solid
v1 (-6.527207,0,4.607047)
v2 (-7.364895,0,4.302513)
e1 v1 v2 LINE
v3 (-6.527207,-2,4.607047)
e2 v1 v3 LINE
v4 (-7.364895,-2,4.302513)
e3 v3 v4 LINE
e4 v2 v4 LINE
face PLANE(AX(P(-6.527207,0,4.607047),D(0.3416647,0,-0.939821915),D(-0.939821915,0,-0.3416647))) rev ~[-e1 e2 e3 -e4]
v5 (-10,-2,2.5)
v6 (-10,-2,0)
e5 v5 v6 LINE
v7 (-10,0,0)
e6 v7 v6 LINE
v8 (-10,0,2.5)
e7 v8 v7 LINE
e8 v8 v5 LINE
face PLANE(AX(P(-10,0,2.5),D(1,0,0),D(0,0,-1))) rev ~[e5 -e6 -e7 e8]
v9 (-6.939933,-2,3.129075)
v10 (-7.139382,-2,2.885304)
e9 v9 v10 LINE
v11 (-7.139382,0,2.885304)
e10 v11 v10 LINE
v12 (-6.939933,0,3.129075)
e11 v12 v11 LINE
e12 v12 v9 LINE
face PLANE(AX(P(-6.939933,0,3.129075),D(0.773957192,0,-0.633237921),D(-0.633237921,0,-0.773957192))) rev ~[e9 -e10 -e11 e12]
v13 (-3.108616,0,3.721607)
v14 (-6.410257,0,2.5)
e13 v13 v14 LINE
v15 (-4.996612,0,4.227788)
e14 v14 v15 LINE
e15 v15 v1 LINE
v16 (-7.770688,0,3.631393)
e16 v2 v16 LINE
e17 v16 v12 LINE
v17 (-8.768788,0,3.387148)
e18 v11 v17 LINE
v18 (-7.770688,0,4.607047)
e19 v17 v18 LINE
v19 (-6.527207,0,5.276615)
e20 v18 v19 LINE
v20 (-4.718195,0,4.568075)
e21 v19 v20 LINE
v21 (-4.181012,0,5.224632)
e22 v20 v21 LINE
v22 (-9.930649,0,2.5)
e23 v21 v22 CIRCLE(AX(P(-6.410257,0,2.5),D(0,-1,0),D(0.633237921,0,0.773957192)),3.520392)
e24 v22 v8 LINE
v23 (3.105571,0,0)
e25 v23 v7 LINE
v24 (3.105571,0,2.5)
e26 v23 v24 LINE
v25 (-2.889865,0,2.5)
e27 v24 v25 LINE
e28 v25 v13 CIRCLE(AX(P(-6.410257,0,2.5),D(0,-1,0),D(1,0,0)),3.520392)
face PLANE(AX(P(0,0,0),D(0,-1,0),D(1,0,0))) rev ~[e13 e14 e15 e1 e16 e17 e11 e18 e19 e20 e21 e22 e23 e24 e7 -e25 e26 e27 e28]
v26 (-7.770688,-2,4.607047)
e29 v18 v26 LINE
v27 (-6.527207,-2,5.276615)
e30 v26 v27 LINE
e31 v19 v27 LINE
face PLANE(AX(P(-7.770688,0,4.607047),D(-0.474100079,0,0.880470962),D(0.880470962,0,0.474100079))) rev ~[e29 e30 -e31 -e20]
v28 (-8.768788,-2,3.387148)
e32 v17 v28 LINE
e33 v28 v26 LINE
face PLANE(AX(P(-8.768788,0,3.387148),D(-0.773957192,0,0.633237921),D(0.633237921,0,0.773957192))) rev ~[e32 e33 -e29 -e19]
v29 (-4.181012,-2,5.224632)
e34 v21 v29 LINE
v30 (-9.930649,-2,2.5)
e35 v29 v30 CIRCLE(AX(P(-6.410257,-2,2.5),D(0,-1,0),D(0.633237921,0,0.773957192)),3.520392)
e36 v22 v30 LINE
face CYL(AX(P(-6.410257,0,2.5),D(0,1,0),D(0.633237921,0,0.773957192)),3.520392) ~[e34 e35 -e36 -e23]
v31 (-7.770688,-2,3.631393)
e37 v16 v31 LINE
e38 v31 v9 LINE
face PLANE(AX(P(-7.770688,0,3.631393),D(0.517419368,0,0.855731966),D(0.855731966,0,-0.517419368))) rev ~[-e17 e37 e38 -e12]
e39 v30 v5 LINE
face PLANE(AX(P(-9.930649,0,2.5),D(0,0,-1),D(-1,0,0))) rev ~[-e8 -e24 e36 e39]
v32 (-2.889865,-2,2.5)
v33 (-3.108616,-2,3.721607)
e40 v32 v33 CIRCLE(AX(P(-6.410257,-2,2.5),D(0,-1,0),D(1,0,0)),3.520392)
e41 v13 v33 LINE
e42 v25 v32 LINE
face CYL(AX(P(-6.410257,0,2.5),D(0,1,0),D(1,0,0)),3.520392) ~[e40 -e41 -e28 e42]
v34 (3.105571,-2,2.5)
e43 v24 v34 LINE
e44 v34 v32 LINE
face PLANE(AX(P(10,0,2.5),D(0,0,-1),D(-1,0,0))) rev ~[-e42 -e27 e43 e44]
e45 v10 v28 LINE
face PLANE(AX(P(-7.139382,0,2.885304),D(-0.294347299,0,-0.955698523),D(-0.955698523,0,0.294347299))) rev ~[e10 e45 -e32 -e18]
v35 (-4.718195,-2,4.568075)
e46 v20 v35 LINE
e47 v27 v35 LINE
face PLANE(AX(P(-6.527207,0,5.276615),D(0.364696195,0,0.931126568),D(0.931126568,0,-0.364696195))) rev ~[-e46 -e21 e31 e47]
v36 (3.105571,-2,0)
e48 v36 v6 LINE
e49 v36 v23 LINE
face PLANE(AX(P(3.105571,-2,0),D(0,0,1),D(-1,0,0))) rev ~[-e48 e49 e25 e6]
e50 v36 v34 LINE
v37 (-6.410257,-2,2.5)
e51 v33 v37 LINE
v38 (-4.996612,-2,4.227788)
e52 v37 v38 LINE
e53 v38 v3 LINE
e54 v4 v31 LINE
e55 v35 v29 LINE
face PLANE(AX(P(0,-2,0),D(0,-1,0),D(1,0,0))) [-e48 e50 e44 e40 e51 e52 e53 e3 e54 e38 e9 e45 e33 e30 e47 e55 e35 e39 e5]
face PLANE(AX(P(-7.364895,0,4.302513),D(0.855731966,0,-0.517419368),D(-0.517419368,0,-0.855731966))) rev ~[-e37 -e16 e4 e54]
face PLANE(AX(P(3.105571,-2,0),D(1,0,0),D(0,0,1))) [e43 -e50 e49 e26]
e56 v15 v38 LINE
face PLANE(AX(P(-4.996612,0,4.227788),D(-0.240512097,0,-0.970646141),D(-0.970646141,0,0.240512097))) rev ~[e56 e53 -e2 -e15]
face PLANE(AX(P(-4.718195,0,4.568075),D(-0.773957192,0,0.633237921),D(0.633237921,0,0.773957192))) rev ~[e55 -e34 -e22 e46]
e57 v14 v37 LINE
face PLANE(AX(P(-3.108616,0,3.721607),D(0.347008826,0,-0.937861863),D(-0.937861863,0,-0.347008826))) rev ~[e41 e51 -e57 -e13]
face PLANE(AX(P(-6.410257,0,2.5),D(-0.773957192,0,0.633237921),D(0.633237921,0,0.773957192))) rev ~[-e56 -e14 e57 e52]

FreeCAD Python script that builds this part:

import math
import FreeCAD as App
import Part
import Sketcher
Q = App.Units.Quantity


def add_polygon(sketch, points):
    """Adds a closed chain of lines whose ends are joined by coincident constraints."""
    first, n = sketch.GeometryCount, len(points)
    for a, b in zip(points, points[1:] + points[:1]):
        sketch.addGeometry(Part.LineSegment(App.Vector(*a, 0), App.Vector(*b, 0)), False)
    for i in range(n):
        sketch.addConstraint(Sketcher.Constraint("Coincident", first + i, 2, first + (i + 1) % n, 1))

doc = App.newDocument("Part")
body = doc.addObject("PartDesign::Body", "Body")

sketch1 = body.newObject("Sketcher::SketchObject", "Sketch")
sketch1.AttachmentSupport = (doc.getObject("XZ_Plane"), [""])
sketch1.MapMode = "FlatFace"
sketch1.addGeometry([
    Part.LineSegment(App.Vector(-10, 2.5, 0), App.Vector(-10, -2.5, 0)),
    Part.LineSegment(App.Vector(-10, -2.5, 0), App.Vector(10, -2.5, 0)),
    Part.LineSegment(App.Vector(10, -2.5, 0), App.Vector(10, 2.5, 0)),
    Part.LineSegment(App.Vector(10, 2.5, 0), App.Vector(-2.89, 2.5, 0)),
    Part.ArcOfCircle(Part.Circle(App.Vector(-6.41, 2.5, 0), App.Vector(0, 0, 1), 3.52), math.radians(0), math.radians(20)),
    Part.LineSegment(App.Vector(-3.11, 3.72, 0), App.Vector(-6.41, 2.5, 0)),
    Part.LineSegment(App.Vector(-6.41, 2.5, 0), App.Vector(-5, 4.23, 0)),
    Part.LineSegment(App.Vector(-5, 4.23, 0), App.Vector(-6.53, 4.61, 0)),
    Part.LineSegment(App.Vector(-6.53, 4.61, 0), App.Vector(-7.36, 4.3, 0)),
    Part.LineSegment(App.Vector(-7.36, 4.3, 0), App.Vector(-7.77, 3.63, 0)),
    Part.LineSegment(App.Vector(-7.77, 3.63, 0), App.Vector(-6.94, 3.13, 0)),
    Part.LineSegment(App.Vector(-6.94, 3.13, 0), App.Vector(-7.14, 2.89, 0)),
    Part.LineSegment(App.Vector(-7.14, 2.89, 0), App.Vector(-8.77, 3.39, 0)),
    Part.LineSegment(App.Vector(-8.77, 3.39, 0), App.Vector(-7.77, 4.61, 0)),
    Part.LineSegment(App.Vector(-7.77, 4.61, 0), App.Vector(-6.53, 5.28, 0)),
    Part.LineSegment(App.Vector(-6.53, 5.28, 0), App.Vector(-4.72, 4.57, 0)),
    Part.LineSegment(App.Vector(-4.72, 4.57, 0), App.Vector(-4.18, 5.22, 0)),
    Part.ArcOfCircle(Part.Circle(App.Vector(-6.41, 2.5, 0), App.Vector(0, 0, 1), 3.52), math.radians(51), math.radians(180)),
    Part.LineSegment(App.Vector(-9.93, 2.5, 0), App.Vector(-10, 2.5, 0)),
], False)
sketch1.addConstraint([
    Sketcher.Constraint("Coincident", 0, 2, 1, 1),
    Sketcher.Constraint("Coincident", 1, 2, 2, 1),
    Sketcher.Constraint("Coincident", 2, 2, 3, 1),
    Sketcher.Constraint("Coincident", 3, 2, 4, 1),
    Sketcher.Constraint("Coincident", 4, 2, 5, 1),
    Sketcher.Constraint("Coincident", 5, 2, 6, 1),
    Sketcher.Constraint("Coincident", 6, 2, 7, 1),
    Sketcher.Constraint("Coincident", 7, 2, 8, 1),
    Sketcher.Constraint("Coincident", 8, 2, 9, 1),
    Sketcher.Constraint("Coincident", 9, 2, 10, 1),
    Sketcher.Constraint("Coincident", 10, 2, 11, 1),
    Sketcher.Constraint("Coincident", 11, 2, 12, 1),
    Sketcher.Constraint("Coincident", 12, 2, 13, 1),
    Sketcher.Constraint("Coincident", 13, 2, 14, 1),
    Sketcher.Constraint("Coincident", 14, 2, 15, 1),
    Sketcher.Constraint("Coincident", 15, 2, 16, 1),
    Sketcher.Constraint("Coincident", 16, 2, 17, 1),
    Sketcher.Constraint("Coincident", 17, 2, 18, 1),
    Sketcher.Constraint("Coincident", 18, 2, 0, 1),
    Sketcher.Constraint("Vertical", 0),
    Sketcher.Constraint("Horizontal", 1),
    Sketcher.Constraint("Vertical", 2),
    Sketcher.Constraint("Horizontal", 3),
    Sketcher.Constraint("Horizontal", 18),
    Sketcher.Constraint("Coincident", 17, 3, 4, 3),
    Sketcher.Constraint("Coincident", 5, 2, 4, 3),
    Sketcher.Constraint("Equal", 4, 17),
    Sketcher.Constraint("Symmetric", 0, 2, 2, 2, -1, 1),
    Sketcher.Constraint("Perpendicular", 9, 10),
    Sketcher.Constraint("Parallel", 6, 11),
    Sketcher.Constraint("Parallel", 11, 13),
    Sketcher.Constraint("Parallel", 13, 16),
    Sketcher.Constraint("Horizontal", 17, 3, 2, 2),
    Sketcher.Constraint("Horizontal", 7, 2, 13, 2),
    Sketcher.Constraint("Horizontal", 5, 2, 17, 2),
    Sketcher.Constraint("Vertical", 9, 2, 13, 2),
    Sketcher.Constraint("Vertical", 7, 2, 14, 2),
    Sketcher.Constraint("DistanceX", 1, 1, 1, 2, Q("20 mm")),
    Sketcher.Constraint("DistanceY", 0, 2, 0, 1, Q("5 mm")),
    Sketcher.Constraint("Radius", 4, Q("3.520392 mm")),
    Sketcher.Constraint("DistanceY", 10, 2, 15, 2, Q("1.439 mm")),
    Sketcher.Constraint("DistanceX", 18, 2, 18, 1, Q("0.069351 mm")),
    Sketcher.Constraint("DistanceX", 12, 2, 9, 2, Q("0.9981 mm")),
    Sketcher.Constraint("DistanceY", 12, 2, 13, 2, Q("1.2199 mm")),
    Sketcher.Constraint("DistanceX", 6, 2, 16, 2, Q("0.8156 mm")),
    Sketcher.Constraint("Distance", 14, Q("1.412291 mm")),
    Sketcher.Constraint("Distance", 15, Q("1.942821 mm")),
    Sketcher.Constraint("Distance", 16, Q("0.848312 mm")),
    Sketcher.Constraint("DistanceX", 6, 2, -1, 1, Q("4.996612 mm")),
    Sketcher.Constraint("DistanceX", 9, 2, -1, 1, Q("7.770688 mm")),
    Sketcher.Constraint("DistanceX", 4, 2, 3, 2, Q("0.218751 mm")),
    Sketcher.Constraint("DistanceY", 6, 2, 7, 2, Q("0.379259 mm")),
    Sketcher.Constraint("DistanceY", 9, 2, 8, 2, Q("0.67112 mm")),
    Sketcher.Constraint("DistanceX", 8, 2, 10, 2, Q("0.424962 mm")),
    Sketcher.Constraint("DistanceX", 11, 2, 10, 2, Q("0.19945 mm")),
    Sketcher.Constraint("DistanceY", 11, 2, 9, 2, Q("0.746089 mm")),
])
pad1 = body.newObject("PartDesign::Pad", "Pad")
pad1.Profile = sketch1
pad1.Length = 2

sketch2 = body.newObject("Sketcher::SketchObject", "Sketch001")
sketch2.AttachmentSupport = (doc.getObject("XZ_Plane"), [""])
sketch2.MapMode = "FlatFace"
sketch2.AttachmentOffset = App.Placement(App.Vector(0, 0, 2), App.Rotation())
add_polygon(sketch2, [(-13.5, -4.5), (11.6, -4.5), (11.6, -3.2), (11.6, 4.7), (3.1, 4.7), (3.1, 0), (-13.5, 0)])
add_polygon(sketch2, [(11, -0.7), (11, -3.2), (3.1, -3.2), (3.1, -2.5), (10, -2.5), (10, -0.7)])
sketch2.addConstraint([
    Sketcher.Constraint("Horizontal", 0),
    Sketcher.Constraint("Vertical", 1),
    Sketcher.Constraint("Vertical", 2),
    Sketcher.Constraint("Horizontal", 3),
    Sketcher.Constraint("Vertical", 4),
    Sketcher.Constraint("Horizontal", 5),
    Sketcher.Constraint("Vertical", 6),
    Sketcher.Constraint("Vertical", 7),
    Sketcher.Constraint("Horizontal", 8),
    Sketcher.Constraint("Vertical", 9),
    Sketcher.Constraint("Horizontal", 10),
    Sketcher.Constraint("Vertical", 11),
    Sketcher.Constraint("Horizontal", 12),
    Sketcher.Constraint("PointOnObject", 4, 2, -1),
    Sketcher.Constraint("Horizontal", 1, 2, 7, 2),
    Sketcher.Constraint("Vertical", 4, 2, 8, 2),
    Sketcher.Constraint("DistanceX", -1, 1, 10, 2, Q("10 mm")),
    Sketcher.Constraint("DistanceY", 9, 2, -1, 1, Q("2.5 mm")),
    Sketcher.Constraint("DistanceX", 10, 1, 10, 2, Q("6.894429 mm")),
    Sketcher.Constraint("DistanceY", 1, 1, 1, 2, Q("1.293988 mm")),
    Sketcher.Constraint("DistanceY", 2, 1, 2, 2, Q("7.936461 mm")),
    Sketcher.Constraint("DistanceY", 4, 2, 4, 1, Q("4.693171 mm")),
    Sketcher.Constraint("DistanceY", 7, 2, 7, 1, Q("2.50171 mm")),
    Sketcher.Constraint("DistanceX", 0, 1, 0, 2, Q("25.189636 mm")),
    Sketcher.Constraint("DistanceX", 3, 2, 3, 1, Q("8.540322 mm")),
    Sketcher.Constraint("DistanceX", 8, 2, 8, 1, Q("7.850194 mm")),
])
pocket1 = body.newObject("PartDesign::Pocket", "Pocket")
pocket1.Profile = sketch2
pocket1.Length = 25

doc.recompute()
